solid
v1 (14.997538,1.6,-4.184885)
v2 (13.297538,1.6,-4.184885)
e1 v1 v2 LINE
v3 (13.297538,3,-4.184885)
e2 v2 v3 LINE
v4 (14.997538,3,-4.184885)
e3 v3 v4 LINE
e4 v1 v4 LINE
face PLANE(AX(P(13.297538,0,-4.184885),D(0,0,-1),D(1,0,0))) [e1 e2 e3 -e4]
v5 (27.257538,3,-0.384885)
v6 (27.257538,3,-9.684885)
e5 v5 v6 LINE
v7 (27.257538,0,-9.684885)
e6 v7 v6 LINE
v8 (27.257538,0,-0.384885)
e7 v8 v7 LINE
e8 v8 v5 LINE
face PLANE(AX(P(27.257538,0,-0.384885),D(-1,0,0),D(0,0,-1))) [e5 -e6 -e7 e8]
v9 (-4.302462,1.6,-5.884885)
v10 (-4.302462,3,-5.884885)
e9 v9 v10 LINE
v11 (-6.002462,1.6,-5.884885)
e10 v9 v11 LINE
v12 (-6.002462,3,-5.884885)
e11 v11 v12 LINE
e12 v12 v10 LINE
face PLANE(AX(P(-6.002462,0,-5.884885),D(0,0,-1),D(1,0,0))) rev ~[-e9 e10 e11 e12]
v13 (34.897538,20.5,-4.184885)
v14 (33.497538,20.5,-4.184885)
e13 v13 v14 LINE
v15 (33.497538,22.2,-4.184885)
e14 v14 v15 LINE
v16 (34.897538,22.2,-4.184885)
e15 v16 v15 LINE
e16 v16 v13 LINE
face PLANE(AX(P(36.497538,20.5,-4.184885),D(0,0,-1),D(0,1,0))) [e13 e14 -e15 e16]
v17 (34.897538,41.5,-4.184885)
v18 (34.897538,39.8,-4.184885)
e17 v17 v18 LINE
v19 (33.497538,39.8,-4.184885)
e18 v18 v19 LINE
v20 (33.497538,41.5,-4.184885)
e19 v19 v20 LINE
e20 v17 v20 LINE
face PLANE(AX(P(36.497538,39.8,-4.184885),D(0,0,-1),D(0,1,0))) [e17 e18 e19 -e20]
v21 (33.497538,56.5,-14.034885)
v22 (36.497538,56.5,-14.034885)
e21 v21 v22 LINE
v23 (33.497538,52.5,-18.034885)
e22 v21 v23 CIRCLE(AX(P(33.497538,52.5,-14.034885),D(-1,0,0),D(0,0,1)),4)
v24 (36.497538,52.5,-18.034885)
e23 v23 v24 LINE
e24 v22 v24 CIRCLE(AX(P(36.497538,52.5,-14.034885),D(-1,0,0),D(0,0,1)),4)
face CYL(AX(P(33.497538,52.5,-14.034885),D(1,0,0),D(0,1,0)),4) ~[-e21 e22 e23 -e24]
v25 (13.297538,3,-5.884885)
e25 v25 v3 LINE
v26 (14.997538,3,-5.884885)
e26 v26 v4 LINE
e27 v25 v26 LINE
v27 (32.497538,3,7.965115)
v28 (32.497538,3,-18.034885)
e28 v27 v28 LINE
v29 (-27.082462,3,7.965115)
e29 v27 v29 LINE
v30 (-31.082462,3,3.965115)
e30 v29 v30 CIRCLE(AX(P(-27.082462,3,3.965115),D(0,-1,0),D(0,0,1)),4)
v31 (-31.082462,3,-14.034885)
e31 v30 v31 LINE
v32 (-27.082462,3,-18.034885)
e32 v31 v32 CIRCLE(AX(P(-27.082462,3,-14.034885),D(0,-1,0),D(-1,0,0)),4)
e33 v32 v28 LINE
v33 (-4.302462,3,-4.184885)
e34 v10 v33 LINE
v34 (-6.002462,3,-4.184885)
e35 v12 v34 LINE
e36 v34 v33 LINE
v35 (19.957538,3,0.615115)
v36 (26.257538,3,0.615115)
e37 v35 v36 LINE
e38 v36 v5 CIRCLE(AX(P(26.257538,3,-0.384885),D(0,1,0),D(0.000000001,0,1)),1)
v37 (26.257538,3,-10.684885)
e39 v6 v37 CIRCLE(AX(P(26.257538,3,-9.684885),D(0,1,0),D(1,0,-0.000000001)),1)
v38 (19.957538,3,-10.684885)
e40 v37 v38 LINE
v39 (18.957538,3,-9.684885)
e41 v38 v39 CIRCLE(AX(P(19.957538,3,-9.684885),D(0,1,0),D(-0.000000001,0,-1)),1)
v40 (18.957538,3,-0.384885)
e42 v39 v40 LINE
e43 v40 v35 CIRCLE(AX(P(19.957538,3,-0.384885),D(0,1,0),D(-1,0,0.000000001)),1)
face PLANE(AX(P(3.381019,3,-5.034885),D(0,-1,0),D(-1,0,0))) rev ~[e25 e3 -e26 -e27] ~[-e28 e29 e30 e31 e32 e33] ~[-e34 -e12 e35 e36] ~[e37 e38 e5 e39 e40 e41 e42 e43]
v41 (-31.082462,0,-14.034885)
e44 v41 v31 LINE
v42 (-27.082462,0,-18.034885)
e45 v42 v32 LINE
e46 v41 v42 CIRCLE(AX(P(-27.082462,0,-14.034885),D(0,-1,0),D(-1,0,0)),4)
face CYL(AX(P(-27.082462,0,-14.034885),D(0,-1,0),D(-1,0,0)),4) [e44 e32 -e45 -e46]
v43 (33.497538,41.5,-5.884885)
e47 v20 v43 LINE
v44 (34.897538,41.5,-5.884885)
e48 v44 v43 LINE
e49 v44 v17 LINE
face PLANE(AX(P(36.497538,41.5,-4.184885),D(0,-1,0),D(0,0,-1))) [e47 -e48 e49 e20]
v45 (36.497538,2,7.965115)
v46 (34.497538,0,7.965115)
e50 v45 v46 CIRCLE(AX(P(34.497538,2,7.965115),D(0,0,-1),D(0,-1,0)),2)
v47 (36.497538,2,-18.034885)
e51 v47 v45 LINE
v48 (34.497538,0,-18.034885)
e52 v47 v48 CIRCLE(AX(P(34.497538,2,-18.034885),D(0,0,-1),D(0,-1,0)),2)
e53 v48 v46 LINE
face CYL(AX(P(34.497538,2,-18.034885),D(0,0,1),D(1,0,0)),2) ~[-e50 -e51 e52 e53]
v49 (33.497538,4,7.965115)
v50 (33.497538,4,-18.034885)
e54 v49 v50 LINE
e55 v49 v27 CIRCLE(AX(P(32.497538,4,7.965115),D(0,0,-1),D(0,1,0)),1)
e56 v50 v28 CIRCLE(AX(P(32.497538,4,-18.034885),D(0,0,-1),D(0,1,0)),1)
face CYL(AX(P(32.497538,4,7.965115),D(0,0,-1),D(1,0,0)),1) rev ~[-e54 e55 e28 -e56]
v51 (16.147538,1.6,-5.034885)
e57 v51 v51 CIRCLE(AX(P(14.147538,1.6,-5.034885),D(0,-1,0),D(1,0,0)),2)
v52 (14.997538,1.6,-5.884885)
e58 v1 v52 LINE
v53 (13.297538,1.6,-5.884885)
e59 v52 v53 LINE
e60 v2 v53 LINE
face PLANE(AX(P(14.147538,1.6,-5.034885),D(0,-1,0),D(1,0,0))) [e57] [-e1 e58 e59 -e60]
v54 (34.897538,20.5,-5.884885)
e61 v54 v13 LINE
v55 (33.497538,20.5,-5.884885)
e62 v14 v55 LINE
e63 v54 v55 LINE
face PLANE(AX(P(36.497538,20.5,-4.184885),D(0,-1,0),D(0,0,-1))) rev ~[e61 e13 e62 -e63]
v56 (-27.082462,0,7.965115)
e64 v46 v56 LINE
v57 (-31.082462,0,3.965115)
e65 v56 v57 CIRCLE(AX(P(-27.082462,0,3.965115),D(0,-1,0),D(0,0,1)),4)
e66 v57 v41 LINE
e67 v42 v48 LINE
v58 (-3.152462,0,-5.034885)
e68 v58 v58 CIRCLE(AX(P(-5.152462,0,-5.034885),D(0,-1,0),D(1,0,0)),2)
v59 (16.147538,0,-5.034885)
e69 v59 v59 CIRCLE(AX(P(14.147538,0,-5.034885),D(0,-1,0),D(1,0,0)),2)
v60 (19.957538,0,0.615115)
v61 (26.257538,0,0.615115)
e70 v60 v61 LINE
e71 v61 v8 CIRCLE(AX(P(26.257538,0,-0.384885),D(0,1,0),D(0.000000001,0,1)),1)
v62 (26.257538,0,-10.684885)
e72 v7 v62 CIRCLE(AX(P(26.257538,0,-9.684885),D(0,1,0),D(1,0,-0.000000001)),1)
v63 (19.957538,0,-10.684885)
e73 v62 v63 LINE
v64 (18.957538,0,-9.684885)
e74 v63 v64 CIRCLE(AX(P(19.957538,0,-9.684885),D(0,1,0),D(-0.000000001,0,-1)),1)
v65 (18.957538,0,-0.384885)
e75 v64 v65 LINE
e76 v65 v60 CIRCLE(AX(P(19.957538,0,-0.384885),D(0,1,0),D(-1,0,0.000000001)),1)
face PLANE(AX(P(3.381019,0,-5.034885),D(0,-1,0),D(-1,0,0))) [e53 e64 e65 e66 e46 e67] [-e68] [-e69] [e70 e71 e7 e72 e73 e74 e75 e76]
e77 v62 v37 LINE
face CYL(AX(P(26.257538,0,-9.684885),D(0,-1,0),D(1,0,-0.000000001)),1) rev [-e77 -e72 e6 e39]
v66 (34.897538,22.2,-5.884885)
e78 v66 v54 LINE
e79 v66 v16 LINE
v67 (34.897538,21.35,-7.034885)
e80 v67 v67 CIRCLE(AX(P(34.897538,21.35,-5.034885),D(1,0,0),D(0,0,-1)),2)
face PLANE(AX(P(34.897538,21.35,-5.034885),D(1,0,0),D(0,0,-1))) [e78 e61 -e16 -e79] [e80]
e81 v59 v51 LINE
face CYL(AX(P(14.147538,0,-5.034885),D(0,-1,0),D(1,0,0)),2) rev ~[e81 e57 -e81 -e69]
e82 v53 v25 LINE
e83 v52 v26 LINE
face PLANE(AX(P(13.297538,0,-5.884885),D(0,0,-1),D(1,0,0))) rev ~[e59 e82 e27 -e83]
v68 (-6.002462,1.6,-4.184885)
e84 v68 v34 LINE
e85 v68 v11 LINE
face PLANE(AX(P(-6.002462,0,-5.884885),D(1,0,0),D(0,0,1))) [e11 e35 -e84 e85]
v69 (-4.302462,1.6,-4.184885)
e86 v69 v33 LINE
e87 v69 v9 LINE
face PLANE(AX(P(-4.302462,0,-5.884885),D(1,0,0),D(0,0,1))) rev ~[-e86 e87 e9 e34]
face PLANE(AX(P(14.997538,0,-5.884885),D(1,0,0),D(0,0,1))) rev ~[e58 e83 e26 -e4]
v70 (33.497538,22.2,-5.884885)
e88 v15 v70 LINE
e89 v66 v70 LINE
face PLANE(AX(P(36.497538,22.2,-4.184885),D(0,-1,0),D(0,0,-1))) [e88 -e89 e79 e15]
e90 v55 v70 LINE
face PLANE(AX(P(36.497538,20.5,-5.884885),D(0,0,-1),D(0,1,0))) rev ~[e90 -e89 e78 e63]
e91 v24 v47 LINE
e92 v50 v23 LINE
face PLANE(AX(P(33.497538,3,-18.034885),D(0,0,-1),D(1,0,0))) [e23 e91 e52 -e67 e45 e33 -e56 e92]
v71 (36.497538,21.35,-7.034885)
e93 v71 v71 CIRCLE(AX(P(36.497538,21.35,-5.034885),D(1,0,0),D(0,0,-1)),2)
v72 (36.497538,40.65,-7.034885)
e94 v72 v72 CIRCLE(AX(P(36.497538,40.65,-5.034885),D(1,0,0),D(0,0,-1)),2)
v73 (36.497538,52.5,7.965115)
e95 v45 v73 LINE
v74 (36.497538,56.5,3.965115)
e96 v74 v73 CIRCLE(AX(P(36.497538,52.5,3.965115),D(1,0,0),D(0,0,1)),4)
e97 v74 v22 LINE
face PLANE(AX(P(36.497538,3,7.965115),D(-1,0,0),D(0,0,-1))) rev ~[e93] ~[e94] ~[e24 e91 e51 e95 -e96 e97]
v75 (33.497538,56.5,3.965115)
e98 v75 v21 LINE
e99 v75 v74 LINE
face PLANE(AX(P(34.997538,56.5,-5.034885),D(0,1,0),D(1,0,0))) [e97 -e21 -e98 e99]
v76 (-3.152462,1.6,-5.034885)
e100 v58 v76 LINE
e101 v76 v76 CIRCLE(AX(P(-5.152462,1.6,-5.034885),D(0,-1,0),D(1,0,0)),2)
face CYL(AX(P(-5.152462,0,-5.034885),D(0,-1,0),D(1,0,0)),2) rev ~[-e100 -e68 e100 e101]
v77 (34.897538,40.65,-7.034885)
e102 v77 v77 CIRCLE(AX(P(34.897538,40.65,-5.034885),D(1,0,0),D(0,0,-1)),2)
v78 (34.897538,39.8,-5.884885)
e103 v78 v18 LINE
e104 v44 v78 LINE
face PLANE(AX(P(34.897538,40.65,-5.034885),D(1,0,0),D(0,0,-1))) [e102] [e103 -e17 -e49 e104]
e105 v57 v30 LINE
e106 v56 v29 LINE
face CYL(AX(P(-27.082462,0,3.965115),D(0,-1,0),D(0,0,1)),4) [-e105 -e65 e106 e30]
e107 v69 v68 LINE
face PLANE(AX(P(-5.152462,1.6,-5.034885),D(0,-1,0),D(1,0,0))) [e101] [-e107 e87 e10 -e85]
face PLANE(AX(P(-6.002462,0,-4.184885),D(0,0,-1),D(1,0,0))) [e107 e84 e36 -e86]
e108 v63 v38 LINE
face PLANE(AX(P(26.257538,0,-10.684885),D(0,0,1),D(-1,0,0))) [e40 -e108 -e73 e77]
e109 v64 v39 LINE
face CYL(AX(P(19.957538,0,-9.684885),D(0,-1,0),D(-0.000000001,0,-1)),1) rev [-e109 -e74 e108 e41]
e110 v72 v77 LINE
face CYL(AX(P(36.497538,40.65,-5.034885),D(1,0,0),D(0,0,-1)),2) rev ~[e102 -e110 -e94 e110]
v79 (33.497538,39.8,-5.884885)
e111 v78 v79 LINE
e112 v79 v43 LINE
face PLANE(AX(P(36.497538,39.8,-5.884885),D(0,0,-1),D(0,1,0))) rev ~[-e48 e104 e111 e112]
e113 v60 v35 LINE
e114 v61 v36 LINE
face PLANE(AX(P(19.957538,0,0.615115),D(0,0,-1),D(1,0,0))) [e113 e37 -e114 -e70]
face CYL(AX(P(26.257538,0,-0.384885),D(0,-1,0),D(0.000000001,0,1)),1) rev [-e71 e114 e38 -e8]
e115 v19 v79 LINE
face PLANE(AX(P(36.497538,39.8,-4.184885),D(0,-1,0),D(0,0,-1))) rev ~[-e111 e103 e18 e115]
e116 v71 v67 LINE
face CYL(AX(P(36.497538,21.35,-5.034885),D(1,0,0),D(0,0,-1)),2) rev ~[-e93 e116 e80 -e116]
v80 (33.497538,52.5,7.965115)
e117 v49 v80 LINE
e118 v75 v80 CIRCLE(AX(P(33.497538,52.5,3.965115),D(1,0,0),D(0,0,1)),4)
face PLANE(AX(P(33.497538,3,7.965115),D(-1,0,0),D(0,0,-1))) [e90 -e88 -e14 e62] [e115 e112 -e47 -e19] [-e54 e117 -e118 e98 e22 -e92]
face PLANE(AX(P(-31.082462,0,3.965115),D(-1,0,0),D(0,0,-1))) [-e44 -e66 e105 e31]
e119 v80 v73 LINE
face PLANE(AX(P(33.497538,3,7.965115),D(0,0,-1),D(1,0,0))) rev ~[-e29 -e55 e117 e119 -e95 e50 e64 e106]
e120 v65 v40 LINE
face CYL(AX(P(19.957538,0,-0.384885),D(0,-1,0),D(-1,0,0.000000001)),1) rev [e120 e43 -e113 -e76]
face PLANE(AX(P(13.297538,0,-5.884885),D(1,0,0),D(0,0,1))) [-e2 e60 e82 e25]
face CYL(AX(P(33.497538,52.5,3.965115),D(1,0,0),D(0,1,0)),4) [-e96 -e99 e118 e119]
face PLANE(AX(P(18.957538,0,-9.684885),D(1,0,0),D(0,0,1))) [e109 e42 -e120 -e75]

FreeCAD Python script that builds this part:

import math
import FreeCAD as App
import Part
import Sketcher

V = App.Vector


def edges_at(feature, points):
    """Names of the edges that pass closest to the given points."""
    edges = feature.Shape.Edges
    near = lambda p: min(range(len(edges)), key=lambda i: edges[i].distToShape(Part.Vertex(*p))[0])
    return sorted({f"Edge{near(p) + 1}" for p in points})

doc = App.newDocument("Part")
body = doc.addObject("PartDesign::Body", "Body")

sketch1 = body.newObject("Sketcher::SketchObject", "Sketch")
sketch1.AttachmentSupport = (doc.getObject("XZ_Plane"), [""])
sketch1.MapMode = "FlatFace"
sketch1.addGeometry([
    Part.LineSegment(V(36.5, -18, 0), V(-27.1, -18, 0)),
    Part.ArcOfCircle(Part.Circle(V(-27.1, -14, 0), V(0, 0, 1), 4), math.radians(-180), math.radians(-90)),
    Part.LineSegment(V(-31.1, -14, 0), V(-31.1, 4, 0)),
    Part.ArcOfCircle(Part.Circle(V(-27.1, 4, 0), V(0, 0, 1), 4), math.radians(90), math.radians(180)),
    Part.LineSegment(V(-27.1, 8, 0), V(36.5, 8, 0)),
    Part.LineSegment(V(36.5, 8, 0), V(36.5, -18, 0)),
], False)
sketch1.addConstraint([
    Sketcher.Constraint("Tangent", 0, 2, 1, 2),
    Sketcher.Constraint("Tangent", 1, 1, 2, 1),
    Sketcher.Constraint("Tangent", 2, 2, 3, 2),
    Sketcher.Constraint("Tangent", 3, 1, 4, 1),
    Sketcher.Constraint("Coincident", 4, 2, 5, 1),
    Sketcher.Constraint("Coincident", 5, 2, 0, 1),
    Sketcher.Constraint("Horizontal", 0),
    Sketcher.Constraint("Vertical", 2),
    Sketcher.Constraint("Horizontal", 4),
    Sketcher.Constraint("Vertical", 5),
    Sketcher.Constraint("Equal", 1, 3),
    Sketcher.Constraint("Radius", 1, 4.0),
    Sketcher.Constraint("DistanceY", 2, 1, 2, 2, 18.0),
    Sketcher.Constraint("DistanceX", 0, 2, 0, 1, 63.58),
    Sketcher.Constraint("DistanceX", 1, 3, -1, 1, 27.082462),
    Sketcher.Constraint("DistanceY", 1, 3, -1, 1, 14.034885),
])
pad1 = body.newObject("PartDesign::Pad", "Pad")
pad1.Profile = sketch1
pad1.Length = 3
pad1.Reversed = True

sketch2 = body.newObject("Sketcher::SketchObject", "Sketch001")
sketch2.AttachmentSupport = (doc.getObject("XZ_Plane"), [""])
sketch2.MapMode = "FlatFace"
sketch2.AttachmentOffset = App.Placement(V(0, 0, -3), App.Rotation())
sketch2.addGeometry([
    Part.LineSegment(V(33.5, -18, 0), V(33.5, 8, 0)),
    Part.LineSegment(V(33.5, 8, 0), V(36.5, 8, 0)),
    Part.LineSegment(V(36.5, 8, 0), V(36.5, -18, 0)),
    Part.LineSegment(V(36.5, -18, 0), V(33.5, -18, 0)),
], False)
sketch2.addConstraint([
    Sketcher.Constraint("Coincident", 0, 2, 1, 1),
    Sketcher.Constraint("Coincident", 1, 2, 2, 1),
    Sketcher.Constraint("Coincident", 2, 2, 3, 1),
    Sketcher.Constraint("Coincident", 3, 2, 0, 1),
    Sketcher.Constraint("Vertical", 0),
    Sketcher.Constraint("Horizontal", 1),
    Sketcher.Constraint("Vertical", 2),
    Sketcher.Constraint("Horizontal", 3),
    Sketcher.Constraint("DistanceX", 1, 1, 1, 2, 3.0),
    Sketcher.Constraint("DistanceY", 0, 1, 0, 2, 26.0),
    Sketcher.Constraint("DistanceX", -1, 1, 0, 2, 33.497538),
    Sketcher.Constraint("DistanceY", -1, 1, 0, 2, 7.965115),
])
pad2 = body.newObject("PartDesign::Pad", "Pad001")
pad2.Profile = sketch2
pad2.Length = 53.5
pad2.Reversed = True
doc.recompute()

fillet = body.newObject("PartDesign::Fillet", "Fillet")
fillet.Base = (pad2, edges_at(pad2, [(34.998, 56.5, -18.035), (34.998, 56.5, 7.965)]))
fillet.Radius = 4
doc.recompute()

fillet2 = body.newObject("PartDesign::Fillet", "Fillet001")
fillet2.Base = (fillet, edges_at(fillet, [(36.498, 0, -5.035)]))
fillet2.Radius = 2
doc.recompute()

fillet3 = body.newObject("PartDesign::Fillet", "Fillet002")
fillet3.Base = (fillet2, edges_at(fillet2, [(33.498, 3, -5.035)]))
fillet3.Radius = 1

sketch3 = body.newObject("Sketcher::SketchObject", "Sketch002")
sketch3.AttachmentSupport = (doc.getObject("XZ_Plane"), [""])
sketch3.MapMode = "FlatFace"
sketch3.addGeometry([
    Part.LineSegment(V(-6, -4.2, 0), V(-6, -5.9, 0)),
    Part.LineSegment(V(-6, -5.9, 0), V(-4.3, -5.9, 0)),
    Part.LineSegment(V(-4.3, -5.9, 0), V(-4.3, -4.2, 0)),
    Part.LineSegment(V(-4.3, -4.2, 0), V(-6, -4.2, 0)),
    Part.LineSegment(V(13.3, -4.2, 0), V(13.3, -5.9, 0)),
    Part.LineSegment(V(13.3, -5.9, 0), V(15, -5.9, 0)),
    Part.LineSegment(V(15, -5.9, 0), V(15, -4.2, 0)),
    Part.LineSegment(V(15, -4.2, 0), V(13.3, -4.2, 0)),
], False)
sketch3.addConstraint([
    Sketcher.Constraint("Coincident", 0, 2, 1, 1),
    Sketcher.Constraint("Coincident", 1, 2, 2, 1),
    Sketcher.Constraint("Coincident", 2, 2, 3, 1),
    Sketcher.Constraint("Coincident", 3, 2, 0, 1),
    Sketcher.Constraint("Coincident", 4, 2, 5, 1),
    Sketcher.Constraint("Coincident", 5, 2, 6, 1),
    Sketcher.Constraint("Coincident", 6, 2, 7, 1),
    Sketcher.Constraint("Coincident", 7, 2, 4, 1),
    Sketcher.Constraint("Vertical", 0),
    Sketcher.Constraint("Horizontal", 1),
    Sketcher.Constraint("Vertical", 2),
    Sketcher.Constraint("Horizontal", 3),
    Sketcher.Constraint("Vertical", 4),
    Sketcher.Constraint("Horizontal", 5),
    Sketcher.Constraint("Vertical", 6),
    Sketcher.Constraint("Horizontal", 7),
    Sketcher.Constraint("Horizontal", 1, 2, 4, 2),
    Sketcher.Constraint("Horizontal", 3, 2, 6, 2),
    Sketcher.Constraint("Equal", 3, 5),
    Sketcher.Constraint("Equal", 7, 0),
    Sketcher.Constraint("DistanceX", 1, 1, 1, 2, 1.7),
    Sketcher.Constraint("DistanceX", 0, 2, 5, 2, 21.0),
    Sketcher.Constraint("DistanceX", 0, 2, -1, 1, 6.002462),
    Sketcher.Constraint("DistanceY", 0, 2, -1, 1, 5.884885),
])
pocket1 = body.newObject("PartDesign::Pocket", "Pocket")
pocket1.Profile = sketch3
pocket1.Length = 3

sketch4 = body.newObject("Sketcher::SketchObject", "Sketch003")
sketch4.AttachmentSupport = (doc.getObject("XZ_Plane"), [""])
sketch4.MapMode = "FlatFace"
sketch4.addGeometry([
    Part.Circle(V(-5.2, -5, 0), V(0, 0, 1), 2),
    Part.Circle(V(14.1, -5, 0), V(0, 0, 1), 2),
], False)
sketch4.addConstraint([
    Sketcher.Constraint("Equal", 0, 1),
    Sketcher.Constraint("Horizontal", 0, 3, 1, 3),
    Sketcher.Constraint("Diameter", 0, 4.0),
    Sketcher.Constraint("DistanceX", 0, 3, 1, 3, 19.3),
    Sketcher.Constraint("DistanceX", 0, 3, -1, 1, 5.152462),
    Sketcher.Constraint("DistanceY", 0, 3, -1, 1, 5.034885),
])
pocket2 = body.newObject("PartDesign::Pocket", "Pocket001")
pocket2.Profile = sketch4
pocket2.Length = 1.6

sketch5 = body.newObject("Sketcher::SketchObject", "Sketch004")
sketch5.AttachmentSupport = (doc.getObject("YZ_Plane"), [""])
sketch5.MapMode = "FlatFace"
sketch5.AttachmentOffset = App.Placement(V(0, 0, 36.497538), App.Rotation())
sketch5.addGeometry([
    Part.LineSegment(V(22.2, -4.2, 0), V(20.5, -4.2, 0)),
    Part.LineSegment(V(20.5, -4.2, 0), V(20.5, -5.9, 0)),
    Part.LineSegment(V(20.5, -5.9, 0), V(22.2, -5.9, 0)),
    Part.LineSegment(V(22.2, -5.9, 0), V(22.2, -4.2, 0)),
    Part.LineSegment(V(41.5, -4.2, 0), V(39.8, -4.2, 0)),
    Part.LineSegment(V(39.8, -4.2, 0), V(39.8, -5.9, 0)),
    Part.LineSegment(V(39.8, -5.9, 0), V(41.5, -5.9, 0)),
    Part.LineSegment(V(41.5, -5.9, 0), V(41.5, -4.2, 0)),
], False)
sketch5.addConstraint([
    Sketcher.Constraint("Coincident", 0, 2, 1, 1),
    Sketcher.Constraint("Coincident", 1, 2, 2, 1),
    Sketcher.Constraint("Coincident", 2, 2, 3, 1),
    Sketcher.Constraint("Coincident", 3, 2, 0, 1),
    Sketcher.Constraint("Coincident", 4, 2, 5, 1),
    Sketcher.Constraint("Coincident", 5, 2, 6, 1),
    Sketcher.Constraint("Coincident", 6, 2, 7, 1),
    Sketcher.Constraint("Coincident", 7, 2, 4, 1),
    Sketcher.Constraint("Horizontal", 0),
    Sketcher.Constraint("Vertical", 1),
    Sketcher.Constraint("Horizontal", 2),
    Sketcher.Constraint("Vertical", 3),
    Sketcher.Constraint("Horizontal", 4),
    Sketcher.Constraint("Vertical", 5),
    Sketcher.Constraint("Horizontal", 6),
    Sketcher.Constraint("Vertical", 7),
    Sketcher.Constraint("Horizontal", 3, 2, 4, 2),
    Sketcher.Constraint("Horizontal", 2, 2, 5, 2),
    Sketcher.Constraint("Equal", 2, 4),
    Sketcher.Constraint("Equal", 6, 1),
    Sketcher.Constraint("DistanceX", 0, 2, 0, 1, 1.7),
    Sketcher.Constraint("DistanceX", 1, 2, 6, 2, 21.0),
    Sketcher.Constraint("DistanceX", -1, 1, 0, 2, 20.5),
    Sketcher.Constraint("DistanceY", 0, 2, -1, 1, 4.184885),
])
pocket3 = body.newObject("PartDesign::Pocket", "Pocket002")
pocket3.Profile = sketch5
pocket3.Length = 3

sketch6 = body.newObject("Sketcher::SketchObject", "Sketch005")
sketch6.AttachmentSupport = (doc.getObject("YZ_Plane"), [""])
sketch6.MapMode = "FlatFace"
sketch6.AttachmentOffset = App.Placement(V(0, 0, 36.497538), App.Rotation())
sketch6.addGeometry([
    Part.Circle(V(40.6, -5, 0), V(0, 0, 1), 2),
    Part.Circle(V(21.4, -5, 0), V(0, 0, 1), 2),
], False)
sketch6.addConstraint([
    Sketcher.Constraint("Equal", 0, 1),
    Sketcher.Constraint("Horizontal", 0, 3, 1, 3),
    Sketcher.Constraint("Diameter", 0, 4.0),
    Sketcher.Constraint("DistanceX", 1, 3, 0, 3, 19.3),
    Sketcher.Constraint("DistanceX", -1, 1, 0, 3, 40.65),
    Sketcher.Constraint("DistanceY", 0, 3, -1, 1, 5.034885),
])
pocket4 = body.newObject("PartDesign::Pocket", "Pocket003")
pocket4.Profile = sketch6
pocket4.Length = 1.6

sketch7 = body.newObject("Sketcher::SketchObject", "Sketch006")
sketch7.AttachmentSupport = (doc.getObject("XZ_Plane"), [""])
sketch7.MapMode = "FlatFace"
sketch7.addGeometry([
    Part.LineSegment(V(26.3, 0.6, 0), V(20, 0.6, 0)),
    Part.ArcOfCircle(Part.Circle(V(20, -0.4, 0), V(0, 0, 1), 1), math.radians(90), math.radians(180)),
    Part.LineSegment(V(19, -0.4, 0), V(19, -9.7, 0)),
    Part.ArcOfCircle(Part.Circle(V(20, -9.7, 0), V(0, 0, 1), 1), math.radians(-180), math.radians(-90)),
    Part.LineSegment(V(20, -10.7, 0), V(26.3, -10.7, 0)),
    Part.ArcOfCircle(Part.Circle(V(26.3, -9.7, 0), V(0, 0, 1), 1), math.radians(-90), math.radians(0)),
    Part.LineSegment(V(27.3, -9.7, 0), V(27.3, -0.4, 0)),
    Part.ArcOfCircle(Part.Circle(V(26.3, -0.4, 0), V(0, 0, 1), 1), math.radians(0), math.radians(90)),
], False)
sketch7.addConstraint([
    Sketcher.Constraint("Tangent", 0, 2, 1, 1),
    Sketcher.Constraint("Tangent", 1, 2, 2, 1),
    Sketcher.Constraint("Tangent", 2, 2, 3, 1),
    Sketcher.Constraint("Tangent", 3, 2, 4, 1),
    Sketcher.Constraint("Tangent", 4, 2, 5, 1),
    Sketcher.Constraint("Tangent", 5, 2, 6, 1),
    Sketcher.Constraint("Tangent", 6, 2, 7, 1),
    Sketcher.Constraint("Tangent", 7, 2, 0, 1),
    Sketcher.Constraint("Horizontal", 0),
    Sketcher.Constraint("Vertical", 2),
    Sketcher.Constraint("Horizontal", 4),
    Sketcher.Constraint("Vertical", 6),
    Sketcher.Constraint("Equal", 1, 3),
    Sketcher.Constraint("Equal", 3, 5),
    Sketcher.Constraint("Equal", 5, 7),
    Sketcher.Constraint("Radius", 1, 1.0),
    Sketcher.Constraint("DistanceX", 0, 2, 0, 1, 6.3),
    Sketcher.Constraint("DistanceY", 2, 2, 2, 1, 9.3),
    Sketcher.Constraint("DistanceX", -1, 1, 1, 3, 19.957538),
    Sketcher.Constraint("DistanceY", 1, 3, -1, 1, 0.384885),
])
pocket5 = body.newObject("PartDesign::Pocket", "Pocket004")
pocket5.Profile = sketch7
pocket5.Length = 3

doc.recompute()
